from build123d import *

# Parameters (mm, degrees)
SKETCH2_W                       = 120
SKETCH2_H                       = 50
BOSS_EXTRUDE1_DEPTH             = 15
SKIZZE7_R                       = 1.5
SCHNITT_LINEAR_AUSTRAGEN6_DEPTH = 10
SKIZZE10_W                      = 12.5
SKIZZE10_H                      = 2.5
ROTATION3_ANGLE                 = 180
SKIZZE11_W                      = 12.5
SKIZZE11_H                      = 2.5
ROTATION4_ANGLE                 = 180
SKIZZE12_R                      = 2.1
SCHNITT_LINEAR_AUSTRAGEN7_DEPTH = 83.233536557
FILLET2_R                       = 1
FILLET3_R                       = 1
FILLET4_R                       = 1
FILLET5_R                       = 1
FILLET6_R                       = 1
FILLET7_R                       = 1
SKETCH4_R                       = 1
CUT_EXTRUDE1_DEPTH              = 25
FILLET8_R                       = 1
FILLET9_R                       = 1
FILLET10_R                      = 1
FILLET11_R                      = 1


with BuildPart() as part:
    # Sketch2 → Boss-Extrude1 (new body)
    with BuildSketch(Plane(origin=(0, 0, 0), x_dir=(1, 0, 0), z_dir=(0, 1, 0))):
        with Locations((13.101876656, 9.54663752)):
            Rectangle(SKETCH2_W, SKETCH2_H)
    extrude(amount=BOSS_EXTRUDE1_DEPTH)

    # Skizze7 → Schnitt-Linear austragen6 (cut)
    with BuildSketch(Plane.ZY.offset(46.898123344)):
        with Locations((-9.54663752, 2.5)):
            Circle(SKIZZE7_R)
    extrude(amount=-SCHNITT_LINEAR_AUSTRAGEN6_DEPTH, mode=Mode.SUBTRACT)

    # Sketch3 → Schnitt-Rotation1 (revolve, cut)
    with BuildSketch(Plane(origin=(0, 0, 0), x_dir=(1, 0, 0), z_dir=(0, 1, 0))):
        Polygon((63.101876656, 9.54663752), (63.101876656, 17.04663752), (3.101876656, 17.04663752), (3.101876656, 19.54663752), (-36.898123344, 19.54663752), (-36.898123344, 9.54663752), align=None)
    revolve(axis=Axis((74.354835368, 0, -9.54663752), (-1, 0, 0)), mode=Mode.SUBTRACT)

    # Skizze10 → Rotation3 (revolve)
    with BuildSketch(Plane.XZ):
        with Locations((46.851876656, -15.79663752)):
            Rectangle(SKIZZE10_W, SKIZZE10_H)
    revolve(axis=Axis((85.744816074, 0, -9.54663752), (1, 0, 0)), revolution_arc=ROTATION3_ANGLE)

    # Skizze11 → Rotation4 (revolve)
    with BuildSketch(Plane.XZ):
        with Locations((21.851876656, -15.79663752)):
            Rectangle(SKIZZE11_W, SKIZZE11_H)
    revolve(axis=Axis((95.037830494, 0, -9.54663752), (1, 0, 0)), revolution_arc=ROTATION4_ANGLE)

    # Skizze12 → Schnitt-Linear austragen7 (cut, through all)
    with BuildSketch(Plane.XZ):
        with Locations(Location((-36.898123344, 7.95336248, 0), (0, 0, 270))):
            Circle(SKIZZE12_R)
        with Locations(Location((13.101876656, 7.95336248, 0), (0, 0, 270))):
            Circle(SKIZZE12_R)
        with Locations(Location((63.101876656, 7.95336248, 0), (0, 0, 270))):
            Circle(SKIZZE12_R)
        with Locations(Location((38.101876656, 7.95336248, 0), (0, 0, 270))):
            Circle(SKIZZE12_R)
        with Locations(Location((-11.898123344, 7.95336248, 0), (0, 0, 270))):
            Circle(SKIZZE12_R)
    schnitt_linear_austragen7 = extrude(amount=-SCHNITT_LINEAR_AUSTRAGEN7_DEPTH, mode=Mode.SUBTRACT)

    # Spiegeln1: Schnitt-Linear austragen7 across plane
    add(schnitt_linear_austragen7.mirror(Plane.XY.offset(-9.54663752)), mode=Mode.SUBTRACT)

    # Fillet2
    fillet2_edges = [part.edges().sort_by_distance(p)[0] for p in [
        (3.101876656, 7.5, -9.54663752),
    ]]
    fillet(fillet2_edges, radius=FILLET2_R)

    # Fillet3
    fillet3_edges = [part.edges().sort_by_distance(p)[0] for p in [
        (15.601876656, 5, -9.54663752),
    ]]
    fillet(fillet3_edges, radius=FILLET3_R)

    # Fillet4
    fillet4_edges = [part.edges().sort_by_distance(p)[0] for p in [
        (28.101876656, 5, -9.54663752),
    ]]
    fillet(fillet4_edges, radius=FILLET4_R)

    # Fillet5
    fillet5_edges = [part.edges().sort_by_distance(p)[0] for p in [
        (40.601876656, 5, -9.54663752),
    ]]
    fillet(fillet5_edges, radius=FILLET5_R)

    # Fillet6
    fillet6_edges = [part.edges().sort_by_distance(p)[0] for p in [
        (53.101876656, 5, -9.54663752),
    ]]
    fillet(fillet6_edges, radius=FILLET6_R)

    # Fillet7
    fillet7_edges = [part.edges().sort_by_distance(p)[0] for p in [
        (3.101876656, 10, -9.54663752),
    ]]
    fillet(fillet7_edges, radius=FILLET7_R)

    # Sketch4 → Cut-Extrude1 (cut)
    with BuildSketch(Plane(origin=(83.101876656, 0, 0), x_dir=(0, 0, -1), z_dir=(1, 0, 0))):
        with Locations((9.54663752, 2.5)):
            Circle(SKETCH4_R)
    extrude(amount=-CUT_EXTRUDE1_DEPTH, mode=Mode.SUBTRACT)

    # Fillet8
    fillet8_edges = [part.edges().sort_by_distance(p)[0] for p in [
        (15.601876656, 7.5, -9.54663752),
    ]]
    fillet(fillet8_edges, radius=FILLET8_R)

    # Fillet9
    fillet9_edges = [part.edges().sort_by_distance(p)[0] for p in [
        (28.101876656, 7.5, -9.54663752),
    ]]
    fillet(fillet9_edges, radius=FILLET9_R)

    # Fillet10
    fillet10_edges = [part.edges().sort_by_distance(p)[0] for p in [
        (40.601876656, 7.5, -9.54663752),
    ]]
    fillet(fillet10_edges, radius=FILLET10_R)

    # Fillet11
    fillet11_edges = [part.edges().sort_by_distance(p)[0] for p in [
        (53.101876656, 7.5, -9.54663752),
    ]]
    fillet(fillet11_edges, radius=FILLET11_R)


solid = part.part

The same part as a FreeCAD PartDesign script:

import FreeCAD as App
import Part
import Sketcher


def edges_at(feature, points):
    """Names of the edges that pass closest to the given points."""
    edges = feature.Shape.Edges
    near = lambda p: min(range(len(edges)), key=lambda i: edges[i].distToShape(Part.Vertex(*p))[0])
    return sorted({f"Edge{near(p) + 1}" for p in points})

doc = App.newDocument("Part")
body = doc.addObject("PartDesign::Body", "Body")

sketch1 = doc.addObject("Sketcher::SketchObject", "Sketch")
body.addObject(sketch1)
sketch1.AttachmentSupport = (doc.XZ_Plane, [""])
sketch1.MapMode = "FlatFace"
sketch1.addGeometry([
    Part.LineSegment(App.Vector(-47, -35, 0), App.Vector(-47, 15, 0)),
    Part.LineSegment(App.Vector(-47, 15, 0), App.Vector(73, 15, 0)),
    Part.LineSegment(App.Vector(73, 15, 0), App.Vector(73, -35, 0)),
    Part.LineSegment(App.Vector(73, -35, 0), App.Vector(-47, -35, 0)),
], False)
sketch1.addConstraint([
    Sketcher.Constraint("Coincident", 0, 2, 1, 1),
    Sketcher.Constraint("Coincident", 1, 2, 2, 1),
    Sketcher.Constraint("Coincident", 2, 2, 3, 1),
    Sketcher.Constraint("Coincident", 3, 2, 0, 1),
    Sketcher.Constraint("Vertical", 0),
    Sketcher.Constraint("Horizontal", 1),
    Sketcher.Constraint("Vertical", 2),
    Sketcher.Constraint("Horizontal", 3),
    Sketcher.Constraint("DistanceX", 1, 1, 1, 2, 120.0),
    Sketcher.Constraint("DistanceY", 0, 1, 0, 2, 50.0),
    Sketcher.Constraint("DistanceX", 0, 2, -1, 1, 46.898123),
    Sketcher.Constraint("DistanceY", -1, 1, 0, 2, 15.453362),
])
pad1 = doc.addObject("PartDesign::Pad", "Pad")
body.addObject(pad1)
pad1.Profile = sketch1
pad1.Length = 15
pad1.Reversed = True

sketch2 = doc.addObject("Sketcher::SketchObject", "Sketch001")
body.addObject(sketch2)
sketch2.AttachmentSupport = (doc.YZ_Plane, [""])
sketch2.MapMode = "FlatFace"
sketch2.AttachmentOffset = App.Placement(App.Vector(0, 0, -46.898123), App.Rotation())
sketch2.addGeometry(Part.Circle(App.Vector(2.5, -9.5, 0), App.Vector(0, 0, 1), 1.5), False)
sketch2.addConstraint([
    Sketcher.Constraint("Diameter", 0, 3.0),
    Sketcher.Constraint("DistanceX", -1, 1, 0, 3, 2.5),
    Sketcher.Constraint("DistanceY", 0, 3, -1, 1, 9.546638),
])
pocket1 = doc.addObject("PartDesign::Pocket", "Pocket")
body.addObject(pocket1)
pocket1.Profile = sketch2
pocket1.Length = 10
pocket1.Reversed = True

sketch3 = doc.addObject("Sketcher::SketchObject", "Sketch002")
body.addObject(sketch3)
sketch3.AttachmentSupport = (doc.XZ_Plane, [""])
sketch3.MapMode = "FlatFace"
sketch3.addGeometry([
    Part.LineSegment(App.Vector(63.1, -9.5, 0), App.Vector(63.1, -17, 0)),
    Part.LineSegment(App.Vector(63.1, -17, 0), App.Vector(3.1, -17, 0)),
    Part.LineSegment(App.Vector(3.1, -17, 0), App.Vector(3.1, -19.5, 0)),
    Part.LineSegment(App.Vector(3.1, -19.5, 0), App.Vector(-36.9, -19.5, 0)),
    Part.LineSegment(App.Vector(-36.9, -19.5, 0), App.Vector(-36.9, -9.5, 0)),
    Part.LineSegment(App.Vector(-36.9, -9.5, 0), App.Vector(63.1, -9.5, 0)),
], False)
sketch3.addGeometry(Part.LineSegment(App.Vector(63.1, -9.5, 0), App.Vector(-36.9, -9.5, 0)), True)
sketch3.addConstraint([
    Sketcher.Constraint("Coincident", 0, 2, 1, 1),
    Sketcher.Constraint("Coincident", 1, 2, 2, 1),
    Sketcher.Constraint("Coincident", 2, 2, 3, 1),
    Sketcher.Constraint("Coincident", 3, 2, 4, 1),
    Sketcher.Constraint("Coincident", 4, 2, 5, 1),
    Sketcher.Constraint("Coincident", 5, 2, 0, 1),
    Sketcher.Constraint("Vertical", 0),
    Sketcher.Constraint("Horizontal", 1),
    Sketcher.Constraint("Vertical", 2),
    Sketcher.Constraint("Horizontal", 3),
    Sketcher.Constraint("Vertical", 4),
    Sketcher.Constraint("Horizontal", 5),
    Sketcher.Constraint("Horizontal", 6),
    Sketcher.Constraint("Coincident", 6, 1, 5, 2),
    Sketcher.Constraint("Vertical", 3, 2, 6, 2),
    Sketcher.Constraint("DistanceX", 1, 2, 1, 1, 60.0),
    Sketcher.Constraint("DistanceX", 3, 2, 3, 1, 40.0),
    Sketcher.Constraint("DistanceY", 4, 1, 4, 2, 10.0),
    Sketcher.Constraint("DistanceY", 0, 2, 0, 1, 7.5),
    Sketcher.Constraint("DistanceX", -1, 1, 0, 2, 63.101877),
    Sketcher.Constraint("DistanceY", 0, 2, -1, 1, 17.046638),
])
groove = doc.addObject("PartDesign::Groove", "Groove")
body.addObject(groove)
groove.Profile = sketch3
groove.ReferenceAxis = (sketch3, ["Axis0"])
groove.Angle = 360

sketch4 = doc.addObject("Sketcher::SketchObject", "Sketch003")
body.addObject(sketch4)
sketch4.AttachmentSupport = (doc.XZ_Plane, [""])
sketch4.MapMode = "FlatFace"
sketch4.addGeometry([
    Part.LineSegment(App.Vector(40.6, -14.5, 0), App.Vector(40.6, -17, 0)),
    Part.LineSegment(App.Vector(40.6, -17, 0), App.Vector(53.1, -17, 0)),
    Part.LineSegment(App.Vector(53.1, -17, 0), App.Vector(53.1, -14.5, 0)),
    Part.LineSegment(App.Vector(53.1, -14.5, 0), App.Vector(40.6, -14.5, 0)),
], False)
sketch4.addGeometry(Part.LineSegment(App.Vector(40.6, -9.5, 0), App.Vector(53.1, -9.5, 0)), True)
sketch4.addConstraint([
    Sketcher.Constraint("Coincident", 0, 2, 1, 1),
    Sketcher.Constraint("Coincident", 1, 2, 2, 1),
    Sketcher.Constraint("Coincident", 2, 2, 3, 1),
    Sketcher.Constraint("Coincident", 3, 2, 0, 1),
    Sketcher.Constraint("Vertical", 0),
    Sketcher.Constraint("Horizontal", 1),
    Sketcher.Constraint("Vertical", 2),
    Sketcher.Constraint("Horizontal", 3),
    Sketcher.Constraint("Horizontal", 4),
    Sketcher.Constraint("Vertical", 3, 2, 4, 1),
    Sketcher.Constraint("Vertical", 2, 2, 4, 2),
    Sketcher.Constraint("DistanceX", 1, 1, 1, 2, 12.5),
    Sketcher.Constraint("DistanceY", 0, 2, 0, 1, 2.5),
    Sketcher.Constraint("DistanceY", 3, 2, 4, 1, 5.0),
    Sketcher.Constraint("DistanceX", -1, 1, 0, 2, 40.601877),
    Sketcher.Constraint("DistanceY", 0, 2, -1, 1, 17.046638),
])
revolution = doc.addObject("PartDesign::Revolution", "Revolution")
body.addObject(revolution)
revolution.Profile = sketch4
revolution.ReferenceAxis = (sketch4, ["Axis0"])
revolution.Angle = 180

sketch5 = doc.addObject("Sketcher::SketchObject", "Sketch004")
body.addObject(sketch5)
sketch5.AttachmentSupport = (doc.XZ_Plane, [""])
sketch5.MapMode = "FlatFace"
sketch5.addGeometry([
    Part.LineSegment(App.Vector(15.6, -14.5, 0), App.Vector(15.6, -17, 0)),
    Part.LineSegment(App.Vector(15.6, -17, 0), App.Vector(28.1, -17, 0)),
    Part.LineSegment(App.Vector(28.1, -17, 0), App.Vector(28.1, -14.5, 0)),
    Part.LineSegment(App.Vector(28.1, -14.5, 0), App.Vector(15.6, -14.5, 0)),
], False)
sketch5.addGeometry(Part.LineSegment(App.Vector(15.6, -9.5, 0), App.Vector(28.1, -9.5, 0)), True)
sketch5.addConstraint([
    Sketcher.Constraint("Coincident", 0, 2, 1, 1),
    Sketcher.Constraint("Coincident", 1, 2, 2, 1),
    Sketcher.Constraint("Coincident", 2, 2, 3, 1),
    Sketcher.Constraint("Coincident", 3, 2, 0, 1),
    Sketcher.Constraint("Vertical", 0),
    Sketcher.Constraint("Horizontal", 1),
    Sketcher.Constraint("Vertical", 2),
    Sketcher.Constraint("Horizontal", 3),
    Sketcher.Constraint("Horizontal", 4),
    Sketcher.Constraint("Vertical", 3, 2, 4, 1),
    Sketcher.Constraint("Vertical", 2, 2, 4, 2),
    Sketcher.Constraint("DistanceX", 1, 1, 1, 2, 12.5),
    Sketcher.Constraint("DistanceY", 0, 2, 0, 1, 2.5),
    Sketcher.Constraint("DistanceY", 3, 2, 4, 1, 5.0),
    Sketcher.Constraint("DistanceX", -1, 1, 0, 2, 15.601877),
    Sketcher.Constraint("DistanceY", 0, 2, -1, 1, 17.046638),
])
revolution2 = doc.addObject("PartDesign::Revolution", "Revolution001")
body.addObject(revolution2)
revolution2.Profile = sketch5
revolution2.ReferenceAxis = (sketch5, ["Axis0"])
revolution2.Angle = 180

sketch6 = doc.addObject("Sketcher::SketchObject", "Sketch005")
body.addObject(sketch6)
sketch6.AttachmentSupport = (doc.XZ_Plane, [""])
sketch6.MapMode = "FlatFace"
sketch6.addGeometry([
    Part.Circle(App.Vector(-36.9, 8, 0), App.Vector(0, 0, 1), 2.1),
    Part.Circle(App.Vector(13.1, 8, 0), App.Vector(0, 0, 1), 2.1),
    Part.Circle(App.Vector(63.1, 8, 0), App.Vector(0, 0, 1), 2.1),
    Part.Circle(App.Vector(38.1, 8, 0), App.Vector(0, 0, 1), 2.1),
    Part.Circle(App.Vector(-11.9, 8, 0), App.Vector(0, 0, 1), 2.1),
], False)
sketch6.addConstraint([
    Sketcher.Constraint("Equal", 0, 1),
    Sketcher.Constraint("Equal", 1, 2),
    Sketcher.Constraint("Equal", 2, 3),
    Sketcher.Constraint("Equal", 3, 4),
    Sketcher.Constraint("Horizontal", 0, 3, 1, 3),
    Sketcher.Constraint("Horizontal", 1, 3, 2, 3),
    Sketcher.Constraint("Horizontal", 2, 3, 3, 3),
    Sketcher.Constraint("Horizontal", 3, 3, 4, 3),
    Sketcher.Constraint("Diameter", 0, 4.2),
    Sketcher.Constraint("DistanceX", 0, 3, 1, 3, 50.0),
    Sketcher.Constraint("DistanceX", 1, 3, 2, 3, 50.0),
    Sketcher.Constraint("DistanceX", 1, 3, 3, 3, 25.0),
    Sketcher.Constraint("DistanceX", 0, 3, 4, 3, 25.0),
    Sketcher.Constraint("DistanceX", 0, 3, -1, 1, 36.898123),
    Sketcher.Constraint("DistanceY", -1, 1, 0, 3, 7.953362),
])
pocket2 = doc.addObject("PartDesign::Pocket", "Pocket001")
body.addObject(pocket2)
pocket2.Profile = sketch6
pocket2.Type = "ThroughAll"
doc.recompute()

datumplane = doc.addObject("PartDesign::Plane", "DatumPlane")
body.addObject(datumplane)
datumplane.AttachmentSupport = (doc.XY_Plane, [""])
datumplane.MapMode = "FlatFace"
datumplane.AttachmentOffset = App.Placement(App.Vector(0, 0, -9.546638), App.Rotation())
mirrored = doc.addObject("PartDesign::Mirrored", "Mirrored")
body.addObject(mirrored)
mirrored.Originals = [pocket2]
mirrored.MirrorPlane = (datumplane, [""])
body.Tip = mirrored
doc.recompute()

fillet = doc.addObject("PartDesign::Fillet", "Fillet")
body.addObject(fillet)
fillet.Base = (mirrored, edges_at(mirrored, [(3.102, 7.5, -9.547)]))
fillet.Radius = 1
doc.recompute()

fillet2 = doc.addObject("PartDesign::Fillet", "Fillet001")
body.addObject(fillet2)
fillet2.Base = (fillet, edges_at(fillet, [(15.602, 5, -9.547)]))
fillet2.Radius = 1
doc.recompute()

fillet3 = doc.addObject("PartDesign::Fillet", "Fillet002")
body.addObject(fillet3)
fillet3.Base = (fillet2, edges_at(fillet2, [(28.102, 5, -9.547)]))
fillet3.Radius = 1
doc.recompute()

fillet4 = doc.addObject("PartDesign::Fillet", "Fillet003")
body.addObject(fillet4)
fillet4.Base = (fillet3, edges_at(fillet3, [(40.602, 5, -9.547)]))
fillet4.Radius = 1
doc.recompute()

fillet5 = doc.addObject("PartDesign::Fillet", "Fillet004")
body.addObject(fillet5)
fillet5.Base = (fillet4, edges_at(fillet4, [(53.102, 5, -9.547)]))
fillet5.Radius = 1
doc.recompute()

fillet6 = doc.addObject("PartDesign::Fillet", "Fillet005")
body.addObject(fillet6)
fillet6.Base = (fillet5, edges_at(fillet5, [(3.102, 10, -9.547)]))
fillet6.Radius = 1

sketch7 = doc.addObject("Sketcher::SketchObject", "Sketch006")
body.addObject(sketch7)
sketch7.AttachmentSupport = (doc.YZ_Plane, [""])
sketch7.MapMode = "FlatFace"
sketch7.AttachmentOffset = App.Placement(App.Vector(0, 0, 83.101877), App.Rotation())
sketch7.addGeometry(Part.Circle(App.Vector(2.5, -9.5, 0), App.Vector(0, 0, 1), 1), False)
sketch7.addConstraint([
    Sketcher.Constraint("Diameter", 0, 2.0),
    Sketcher.Constraint("DistanceX", -1, 1, 0, 3, 2.5),
    Sketcher.Constraint("DistanceY", 0, 3, -1, 1, 9.546638),
])
pocket3 = doc.addObject("PartDesign::Pocket", "Pocket002")
body.addObject(pocket3)
pocket3.Profile = sketch7
pocket3.Length = 25
doc.recompute()

fillet7 = doc.addObject("PartDesign::Fillet", "Fillet006")
body.addObject(fillet7)
fillet7.Base = (pocket3, edges_at(pocket3, [(15.602, 7.5, -9.547)]))
fillet7.Radius = 1
doc.recompute()

fillet8 = doc.addObject("PartDesign::Fillet", "Fillet007")
body.addObject(fillet8)
fillet8.Base = (fillet7, edges_at(fillet7, [(28.102, 7.5, -9.547)]))
fillet8.Radius = 1
doc.recompute()

fillet9 = doc.addObject("PartDesign::Fillet", "Fillet008")
body.addObject(fillet9)
fillet9.Base = (fillet8, edges_at(fillet8, [(40.602, 7.5, -9.547)]))
fillet9.Radius = 1
doc.recompute()

fillet10 = doc.addObject("PartDesign::Fillet", "Fillet009")
body.addObject(fillet10)
fillet10.Base = (fillet9, edges_at(fillet9, [(53.102, 7.5, -9.547)]))
fillet10.Radius = 1

doc.recompute()
